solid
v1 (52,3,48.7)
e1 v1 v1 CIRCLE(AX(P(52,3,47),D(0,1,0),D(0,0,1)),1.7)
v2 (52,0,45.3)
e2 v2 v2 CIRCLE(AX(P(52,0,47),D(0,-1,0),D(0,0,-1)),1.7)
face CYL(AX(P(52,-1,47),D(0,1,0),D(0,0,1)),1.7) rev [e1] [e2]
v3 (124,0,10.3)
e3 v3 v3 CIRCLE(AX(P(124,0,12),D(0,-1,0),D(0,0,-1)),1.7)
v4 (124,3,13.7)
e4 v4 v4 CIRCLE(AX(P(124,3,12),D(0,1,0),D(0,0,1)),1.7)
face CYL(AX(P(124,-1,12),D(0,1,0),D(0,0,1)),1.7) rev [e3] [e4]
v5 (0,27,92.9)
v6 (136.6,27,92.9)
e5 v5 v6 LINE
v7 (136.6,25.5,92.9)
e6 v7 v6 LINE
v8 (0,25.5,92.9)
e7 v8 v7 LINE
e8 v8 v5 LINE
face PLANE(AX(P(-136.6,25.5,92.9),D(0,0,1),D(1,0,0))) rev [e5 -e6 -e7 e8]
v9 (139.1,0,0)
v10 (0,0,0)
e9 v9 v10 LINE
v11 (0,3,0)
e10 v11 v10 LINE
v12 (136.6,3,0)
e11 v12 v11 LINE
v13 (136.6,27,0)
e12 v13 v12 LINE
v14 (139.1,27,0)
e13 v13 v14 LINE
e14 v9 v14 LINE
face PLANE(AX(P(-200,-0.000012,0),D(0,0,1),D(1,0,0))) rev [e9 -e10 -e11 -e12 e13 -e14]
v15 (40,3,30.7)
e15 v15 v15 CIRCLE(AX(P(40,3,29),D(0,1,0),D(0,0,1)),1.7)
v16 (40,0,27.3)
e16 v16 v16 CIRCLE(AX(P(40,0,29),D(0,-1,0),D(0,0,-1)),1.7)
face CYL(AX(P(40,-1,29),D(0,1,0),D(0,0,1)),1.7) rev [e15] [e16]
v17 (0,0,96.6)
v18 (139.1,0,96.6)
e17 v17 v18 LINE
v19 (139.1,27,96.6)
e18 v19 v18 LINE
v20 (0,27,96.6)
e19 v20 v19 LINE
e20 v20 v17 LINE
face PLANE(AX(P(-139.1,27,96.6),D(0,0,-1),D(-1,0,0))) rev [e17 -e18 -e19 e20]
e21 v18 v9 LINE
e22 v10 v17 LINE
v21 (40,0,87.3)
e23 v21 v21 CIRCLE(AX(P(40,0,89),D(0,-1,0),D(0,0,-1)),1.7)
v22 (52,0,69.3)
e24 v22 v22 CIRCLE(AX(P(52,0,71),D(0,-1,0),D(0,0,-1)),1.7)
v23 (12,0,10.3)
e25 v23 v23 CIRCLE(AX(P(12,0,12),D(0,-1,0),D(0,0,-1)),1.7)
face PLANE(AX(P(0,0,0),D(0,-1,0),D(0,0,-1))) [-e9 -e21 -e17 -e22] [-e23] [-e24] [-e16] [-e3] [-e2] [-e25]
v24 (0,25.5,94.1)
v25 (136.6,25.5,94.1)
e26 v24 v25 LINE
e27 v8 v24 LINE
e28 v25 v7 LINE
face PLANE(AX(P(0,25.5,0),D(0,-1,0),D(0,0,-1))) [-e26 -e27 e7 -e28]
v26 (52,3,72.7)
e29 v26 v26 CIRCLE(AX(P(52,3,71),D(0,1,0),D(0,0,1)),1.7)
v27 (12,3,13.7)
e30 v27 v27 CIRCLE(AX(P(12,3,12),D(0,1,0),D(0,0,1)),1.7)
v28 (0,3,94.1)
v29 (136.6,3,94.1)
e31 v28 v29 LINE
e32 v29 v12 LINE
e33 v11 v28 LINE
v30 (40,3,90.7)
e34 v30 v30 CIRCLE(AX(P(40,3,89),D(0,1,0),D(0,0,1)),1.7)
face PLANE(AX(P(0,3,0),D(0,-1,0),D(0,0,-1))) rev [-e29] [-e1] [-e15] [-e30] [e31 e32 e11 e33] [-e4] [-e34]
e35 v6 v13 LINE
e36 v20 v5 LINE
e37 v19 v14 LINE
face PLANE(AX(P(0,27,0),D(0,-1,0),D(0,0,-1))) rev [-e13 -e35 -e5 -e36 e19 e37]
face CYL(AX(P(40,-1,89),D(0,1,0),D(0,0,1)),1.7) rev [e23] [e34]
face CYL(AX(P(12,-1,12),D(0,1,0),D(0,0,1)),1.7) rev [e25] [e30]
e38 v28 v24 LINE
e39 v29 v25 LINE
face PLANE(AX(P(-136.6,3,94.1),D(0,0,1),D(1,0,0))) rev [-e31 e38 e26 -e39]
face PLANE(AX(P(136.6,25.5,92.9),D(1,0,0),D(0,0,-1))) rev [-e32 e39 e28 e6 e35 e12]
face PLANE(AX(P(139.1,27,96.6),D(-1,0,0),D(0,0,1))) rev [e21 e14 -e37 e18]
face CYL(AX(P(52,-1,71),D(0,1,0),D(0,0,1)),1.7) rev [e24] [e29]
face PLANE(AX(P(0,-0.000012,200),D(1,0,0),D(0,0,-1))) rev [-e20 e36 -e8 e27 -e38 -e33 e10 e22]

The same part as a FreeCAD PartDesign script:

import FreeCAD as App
import Part
import Sketcher
from FreeCAD import Vector


def add_polygon(sketch, points):
    """Adds a closed chain of lines whose ends are joined by coincident constraints."""
    first, n = sketch.GeometryCount, len(points)
    for a, b in zip(points, points[1:] + points[:1]):
        sketch.addGeometry(Part.LineSegment(App.Vector(*a, 0), App.Vector(*b, 0)), False)
    for i in range(n):
        sketch.addConstraint(Sketcher.Constraint("Coincident", first + i, 2, first + (i + 1) % n, 1))

doc = App.newDocument("Part")
params = doc.addObject("Spreadsheet::Sheet", "Params")
for row, (alias, value) in enumerate([
    ("sketch1_width", "278.2 mm"),
    ("sketch1_height", "193.2 mm"),
    ("pad1_length", "27 mm"),
    ("sketch2_width", "273.2 mm"),
    ("sketch2_height", "185.8 mm"),
    ("pocket1_length", "1.5 mm"),
    ("sketch3_width", "273.2 mm"),
    ("sketch3_height", "188.2 mm"),
    ("pocket2_length", "22.5 mm"),
    ("sketch4_width", "3 mm"),
    ("sketch4_height", "56 mm"),
    ("pocket3_length", "4 mm"),
    ("sketch5_width", "23 mm"),
    ("sketch5_height", "58 mm"),
    ("pocket4_length", "140.1 mm"),
    ("sketch6_diameter", "3.4 mm"),
    ("pocket5_length", "4 mm"),
    ("sketch7_width", "200 mm"),
    ("sketch7_height", "400 mm"),
    ("sketch8_width", "400 mm"),
    ("sketch8_height", "200 mm"),
], start=1):
    params.set(f"A{row}", alias)
    params.set(f"B{row}", "=" + value)
    params.setAlias(f"B{row}", alias)

body = doc.addObject("PartDesign::Body", "Body")

# Sketch on XZ plane
sketch1 = body.newObject("Sketcher::SketchObject", "Sketch")
sketch1.AttachmentSupport = (doc.getObject("XZ_Plane"), [""])
sketch1.MapMode = "FlatFace"
add_polygon(sketch1, [(-139, -97), (-139, 97), (139, 97), (139, -97)])  # lines 0-3
sketch1.addConstraint([
    Sketcher.Constraint("Vertical", 0),
    Sketcher.Constraint("Horizontal", 1),
    Sketcher.Constraint("Vertical", 2),
    Sketcher.Constraint("Horizontal", 3),
    Sketcher.Constraint("Symmetric", 0, 2, 2, 2, -1, 1),
    Sketcher.Constraint("DistanceX", 1, 1, 1, 2, 278.2),
    Sketcher.Constraint("DistanceY", 0, 1, 0, 2, 193.2),
])
sketch1.setExpression("Constraints[9]", "Params.sketch1_width")
sketch1.setExpression("Constraints[10]", "Params.sketch1_height")
pad1 = body.newObject("PartDesign::Pad", "Pad")
pad1.Profile = sketch1
pad1.setExpression("Length", "Params.pad1_length")
pad1.Reversed = True

# Sketch on XZ plane
sketch2 = body.newObject("Sketcher::SketchObject", "Sketch001")
sketch2.AttachmentSupport = (doc.getObject("XZ_Plane"), [""])
sketch2.MapMode = "FlatFace"
sketch2.AttachmentOffset = App.Placement(Vector(0, 0, -27), App.Rotation())
add_polygon(sketch2, [(-137, -93), (-137, 93), (137, 93), (137, -93)])  # lines 0-3
sketch2.addConstraint([
    Sketcher.Constraint("Vertical", 0),
    Sketcher.Constraint("Horizontal", 1),
    Sketcher.Constraint("Vertical", 2),
    Sketcher.Constraint("Horizontal", 3),
    Sketcher.Constraint("Symmetric", 0, 2, 2, 2, -1, 1),
    Sketcher.Constraint("DistanceX", 1, 1, 1, 2, 273.2),
    Sketcher.Constraint("DistanceY", 0, 1, 0, 2, 185.8),
])
sketch2.setExpression("Constraints[9]", "Params.sketch2_width")
sketch2.setExpression("Constraints[10]", "Params.sketch2_height")
pocket1 = body.newObject("PartDesign::Pocket", "Pocket")
pocket1.Profile = sketch2
pocket1.setExpression("Length", "Params.pocket1_length")
pocket1.Reversed = True

# Sketch on XZ plane
sketch3 = body.newObject("Sketcher::SketchObject", "Sketch002")
sketch3.AttachmentSupport = (doc.getObject("XZ_Plane"), [""])
sketch3.MapMode = "FlatFace"
sketch3.AttachmentOffset = App.Placement(Vector(0, 0, -25.5), App.Rotation())
add_polygon(sketch3, [(-137, -94), (-137, 94), (137, 94), (137, -94)])  # lines 0-3
sketch3.addConstraint([
    Sketcher.Constraint("Vertical", 0),
    Sketcher.Constraint("Horizontal", 1),
    Sketcher.Constraint("Vertical", 2),
    Sketcher.Constraint("Horizontal", 3),
    Sketcher.Constraint("Symmetric", 0, 2, 2, 2, -1, 1),
    Sketcher.Constraint("DistanceX", 1, 1, 1, 2, 273.2),
    Sketcher.Constraint("DistanceY", 0, 1, 0, 2, 188.2),
])
sketch3.setExpression("Constraints[9]", "Params.sketch3_width")
sketch3.setExpression("Constraints[10]", "Params.sketch3_height")
pocket2 = body.newObject("PartDesign::Pocket", "Pocket001")
pocket2.Profile = sketch3
pocket2.setExpression("Length", "Params.pocket2_length")
pocket2.Reversed = True

# Sketch on XZ plane
sketch4 = body.newObject("Sketcher::SketchObject", "Sketch003")
sketch4.AttachmentSupport = (doc.getObject("XZ_Plane"), [""])
sketch4.MapMode = "FlatFace"
sketch4.AttachmentOffset = App.Placement(Vector(0, 0, -3), App.Rotation())
add_polygon(sketch4, [(-69, -84), (-69, -28), (-66, -28), (-66, -84)])  # lines 0-3
add_polygon(sketch4, [(-69, 28), (-69, 84), (-66, 84), (-66, 28)])  # lines 4-7
add_polygon(sketch4, [(-77, -84), (-77, -28), (-74, -28), (-74, -84)])  # lines 8-11
add_polygon(sketch4, [(-77, 28), (-77, 84), (-74, 84), (-74, 28)])  # lines 12-15
add_polygon(sketch4, [(-85, -84), (-85, -28), (-82, -28), (-82, -84)])  # lines 16-19
add_polygon(sketch4, [(-85, 28), (-85, 84), (-82, 84), (-82, 28)])  # lines 20-23
add_polygon(sketch4, [(-93, -84), (-93, -28), (-90, -28), (-90, -84)])  # lines 24-27
add_polygon(sketch4, [(-93, 28), (-93, 84), (-90, 84), (-90, 28)])  # lines 28-31
add_polygon(sketch4, [(-101, -84), (-101, -28), (-98, -28), (-98, -84)])  # lines 32-35
add_polygon(sketch4, [(-101, 28), (-101, 84), (-98, 84), (-98, 28)])  # lines 36-39
add_polygon(sketch4, [(-109, -84), (-109, -28), (-106, -28), (-106, -84)])  # lines 40-43
add_polygon(sketch4, [(-109, 28), (-109, 84), (-106, 84), (-106, 28)])  # lines 44-47
add_polygon(sketch4, [(-117, -84), (-117, -28), (-114, -28), (-114, -84)])  # lines 48-51
add_polygon(sketch4, [(-117, 28), (-117, 84), (-114, 84), (-114, 28)])  # lines 52-55
add_polygon(sketch4, [(-125, -84), (-125, -28), (-122, -28), (-122, -84)])  # lines 56-59
add_polygon(sketch4, [(-125, 28), (-125, 84), (-122, 84), (-122, 28)])  # lines 60-63
sketch4.addConstraint([
    Sketcher.Constraint("Vertical", 0),
    Sketcher.Constraint("Horizontal", 1),
    Sketcher.Constraint("Vertical", 2),
    Sketcher.Constraint("Horizontal", 3),
    Sketcher.Constraint("Vertical", 4),
    Sketcher.Constraint("Horizontal", 5),
    Sketcher.Constraint("Vertical", 6),
    Sketcher.Constraint("Horizontal", 7),
    Sketcher.Constraint("Vertical", 8),
    Sketcher.Constraint("Horizontal", 9),
    Sketcher.Constraint("Vertical", 10),
    Sketcher.Constraint("Horizontal", 11),
    Sketcher.Constraint("Vertical", 12),
    Sketcher.Constraint("Horizontal", 13),
    Sketcher.Constraint("Vertical", 14),
    Sketcher.Constraint("Horizontal", 15),
    Sketcher.Constraint("Vertical", 16),
    Sketcher.Constraint("Horizontal", 17),
    Sketcher.Constraint("Vertical", 18),
    Sketcher.Constraint("Horizontal", 19),
    Sketcher.Constraint("Vertical", 20),
    Sketcher.Constraint("Horizontal", 21),
    Sketcher.Constraint("Vertical", 22),
    Sketcher.Constraint("Horizontal", 23),
    Sketcher.Constraint("Vertical", 24),
    Sketcher.Constraint("Horizontal", 25),
    Sketcher.Constraint("Vertical", 26),
    Sketcher.Constraint("Horizontal", 27),
    Sketcher.Constraint("Vertical", 28),
    Sketcher.Constraint("Horizontal", 29),
    Sketcher.Constraint("Vertical", 30),
    Sketcher.Constraint("Horizontal", 31),
    Sketcher.Constraint("Vertical", 32),
    Sketcher.Constraint("Horizontal", 33),
    Sketcher.Constraint("Vertical", 34),
    Sketcher.Constraint("Horizontal", 35),
    Sketcher.Constraint("Vertical", 36),
    Sketcher.Constraint("Horizontal", 37),
    Sketcher.Constraint("Vertical", 38),
    Sketcher.Constraint("Horizontal", 39),
    Sketcher.Constraint("Vertical", 40),
    Sketcher.Constraint("Horizontal", 41),
    Sketcher.Constraint("Vertical", 42),
    Sketcher.Constraint("Horizontal", 43),
    Sketcher.Constraint("Vertical", 44),
    Sketcher.Constraint("Horizontal", 45),
    Sketcher.Constraint("Vertical", 46),
    Sketcher.Constraint("Horizontal", 47),
    Sketcher.Constraint("Vertical", 48),
    Sketcher.Constraint("Horizontal", 49),
    Sketcher.Constraint("Vertical", 50),
    Sketcher.Constraint("Horizontal", 51),
    Sketcher.Constraint("Vertical", 52),
    Sketcher.Constraint("Horizontal", 53),
    Sketcher.Constraint("Vertical", 54),
    Sketcher.Constraint("Horizontal", 55),
    Sketcher.Constraint("Vertical", 56),
    Sketcher.Constraint("Horizontal", 57),
    Sketcher.Constraint("Vertical", 58),
    Sketcher.Constraint("Horizontal", 59),
    Sketcher.Constraint("Vertical", 60),
    Sketcher.Constraint("Horizontal", 61),
    Sketcher.Constraint("Vertical", 62),
    Sketcher.Constraint("Horizontal", 63),
    Sketcher.Constraint("Symmetric", 3, 2, 4, 2, -1),
    Sketcher.Constraint("Symmetric", 1, 2, 6, 2, -1),
    Sketcher.Constraint("Symmetric", 11, 2, 12, 2, -1),
    Sketcher.Constraint("Symmetric", 9, 2, 14, 2, -1),
    Sketcher.Constraint("Symmetric", 19, 2, 20, 2, -1),
    Sketcher.Constraint("Symmetric", 17, 2, 22, 2, -1),
    Sketcher.Constraint("Symmetric", 27, 2, 28, 2, -1),
    Sketcher.Constraint("Symmetric", 25, 2, 30, 2, -1),
    Sketcher.Constraint("Symmetric", 35, 2, 36, 2, -1),
    Sketcher.Constraint("Symmetric", 33, 2, 38, 2, -1),
    Sketcher.Constraint("Symmetric", 43, 2, 44, 2, -1),
    Sketcher.Constraint("Symmetric", 41, 2, 46, 2, -1),
    Sketcher.Constraint("Symmetric", 51, 2, 52, 2, -1),
    Sketcher.Constraint("Symmetric", 49, 2, 54, 2, -1),
    Sketcher.Constraint("Symmetric", 59, 2, 60, 2, -1),
    Sketcher.Constraint("Symmetric", 57, 2, 62, 2, -1),
    Sketcher.Constraint("Horizontal", 1, 2, 8, 2),
    Sketcher.Constraint("Horizontal", 3, 2, 10, 2),
    Sketcher.Constraint("Horizontal", 9, 2, 16, 2),
    Sketcher.Constraint("Horizontal", 11, 2, 18, 2),
    Sketcher.Constraint("Horizontal", 17, 2, 24, 2),
    Sketcher.Constraint("Horizontal", 19, 2, 26, 2),
    Sketcher.Constraint("Horizontal", 25, 2, 32, 2),
    Sketcher.Constraint("Horizontal", 27, 2, 34, 2),
    Sketcher.Constraint("Horizontal", 33, 2, 40, 2),
    Sketcher.Constraint("Horizontal", 35, 2, 42, 2),
    Sketcher.Constraint("Horizontal", 41, 2, 48, 2),
    Sketcher.Constraint("Horizontal", 43, 2, 50, 2),
    Sketcher.Constraint("Horizontal", 49, 2, 56, 2),
    Sketcher.Constraint("Horizontal", 51, 2, 58, 2),
    Sketcher.Constraint("Equal", 7, 9),
    Sketcher.Constraint("Equal", 15, 17),
    Sketcher.Constraint("Equal", 23, 25),
    Sketcher.Constraint("Equal", 31, 33),
    Sketcher.Constraint("Equal", 39, 41),
    Sketcher.Constraint("Equal", 47, 49),
    Sketcher.Constraint("Equal", 55, 57),
    Sketcher.Constraint("DistanceX", 1, 1, 1, 2, 3.0),
    Sketcher.Constraint("DistanceY", 0, 1, 0, 2, 56.0),
    Sketcher.Constraint("DistanceX", 0, 2, -1, 1, 69.0),
    Sketcher.Constraint("DistanceY", 0, 2, -1, 1, 28.0),
    Sketcher.Constraint("DistanceX", 8, 2, -1, 1, 77.0),
    Sketcher.Constraint("DistanceX", 16, 2, -1, 1, 85.0),
    Sketcher.Constraint("DistanceX", 24, 2, -1, 1, 93.0),
    Sketcher.Constraint("DistanceX", 32, 2, -1, 1, 101.0),
    Sketcher.Constraint("DistanceX", 40, 2, -1, 1, 109.0),
    Sketcher.Constraint("DistanceX", 48, 2, -1, 1, 117.0),
    Sketcher.Constraint("DistanceX", 56, 2, -1, 1, 125.0),
])
sketch4.setExpression("Constraints[165]", "Params.sketch4_width")
sketch4.setExpression("Constraints[166]", "Params.sketch4_height")
pocket3 = body.newObject("PartDesign::Pocket", "Pocket002")
pocket3.Profile = sketch4
pocket3.setExpression("Length", "Params.pocket3_length")
pocket3.Reversed = True

# Sketch on YZ plane
sketch5 = body.newObject("Sketcher::SketchObject", "Sketch004")
sketch5.AttachmentSupport = (doc.getObject("YZ_Plane"), [""])
sketch5.MapMode = "FlatFace"
add_polygon(sketch5, [(28, 29), (5, 29), (5, -29), (28, -29)])  # lines 0-3
sketch5.addConstraint([
    Sketcher.Constraint("Horizontal", 0),
    Sketcher.Constraint("Vertical", 1),
    Sketcher.Constraint("Horizontal", 2),
    Sketcher.Constraint("Vertical", 3),
    Sketcher.Constraint("DistanceX", 0, 2, 0, 1, 23.0),
    Sketcher.Constraint("DistanceY", 1, 2, 1, 1, 58.0),
    Sketcher.Constraint("DistanceX", -1, 1, 0, 2, 5.0),
    Sketcher.Constraint("DistanceY", -1, 1, 0, 2, 29.0),
])
sketch5.setExpression("Constraints[8]", "Params.sketch5_width")
sketch5.setExpression("Constraints[9]", "Params.sketch5_height")
pocket4 = body.newObject("PartDesign::Pocket", "Pocket003")
pocket4.Profile = sketch5
pocket4.setExpression("Length", "Params.pocket4_length")

# Sketch on XZ plane
sketch6 = body.newObject("Sketcher::SketchObject", "Sketch005")
sketch6.AttachmentSupport = (doc.getObject("XZ_Plane"), [""])
sketch6.MapMode = "FlatFace"
sketch6.AttachmentOffset = App.Placement(Vector(0, 0, -3), App.Rotation())
sketch6.addGeometry([
    Part.Circle(Vector(-40, 29, 0), Vector(0, 0, 1), 1.7),  # 0
    Part.Circle(Vector(-40, 89, 0), Vector(0, 0, 1), 1.7),  # 1
    Part.Circle(Vector(40, 29, 0), Vector(0, 0, 1), 1.7),  # 2
    Part.Circle(Vector(40, 89, 0), Vector(0, 0, 1), 1.7),  # 3
    Part.Circle(Vector(-52, 47, 0), Vector(0, 0, 1), 1.7),  # 4
    Part.Circle(Vector(-52, 71, 0), Vector(0, 0, 1), 1.7),  # 5
    Part.Circle(Vector(52, 47, 0), Vector(0, 0, 1), 1.7),  # 6
    Part.Circle(Vector(52, 71, 0), Vector(0, 0, 1), 1.7),  # 7
    Part.Circle(Vector(-12, -82, 0), Vector(0, 0, 1), 1.7),  # 8
    Part.Circle(Vector(12, -82, 0), Vector(0, 0, 1), 1.7),  # 9
    Part.Circle(Vector(124, -12, 0), Vector(0, 0, 1), 1.7),  # 10
    Part.Circle(Vector(124, 12, 0), Vector(0, 0, 1), 1.7),  # 11
    Part.Circle(Vector(-12, -12, 0), Vector(0, 0, 1), 1.7),  # 12
    Part.Circle(Vector(-12, 12, 0), Vector(0, 0, 1), 1.7),  # 13
    Part.Circle(Vector(12, -12, 0), Vector(0, 0, 1), 1.7),  # 14
    Part.Circle(Vector(12, 12, 0), Vector(0, 0, 1), 1.7),  # 15
    Part.Circle(Vector(-110, 12, 0), Vector(0, 0, 1), 1.7),  # 16
    Part.Circle(Vector(-110, -12, 0), Vector(0, 0, 1), 1.7),  # 17
    Part.Circle(Vector(-86, 12, 0), Vector(0, 0, 1), 1.7),  # 18
    Part.Circle(Vector(-86, -12, 0), Vector(0, 0, 1), 1.7),  # 19
], False)
sketch6.addConstraint([
    Sketcher.Constraint("Equal", 0, 1),
    Sketcher.Constraint("Equal", 1, 2),
    Sketcher.Constraint("Equal", 2, 3),
    Sketcher.Constraint("Equal", 3, 4),
    Sketcher.Constraint("Equal", 4, 5),
    Sketcher.Constraint("Equal", 5, 6),
    Sketcher.Constraint("Equal", 6, 7),
    Sketcher.Constraint("Equal", 7, 8),
    Sketcher.Constraint("Equal", 8, 9),
    Sketcher.Constraint("Equal", 9, 10),
    Sketcher.Constraint("Equal", 10, 11),
    Sketcher.Constraint("Equal", 11, 12),
    Sketcher.Constraint("Equal", 12, 13),
    Sketcher.Constraint("Equal", 13, 14),
    Sketcher.Constraint("Equal", 14, 15),
    Sketcher.Constraint("Equal", 15, 16),
    Sketcher.Constraint("Equal", 16, 17),
    Sketcher.Constraint("Equal", 17, 18),
    Sketcher.Constraint("Equal", 18, 19),
    Sketcher.Constraint("Symmetric", 13, 3, 14, 3, -1, 1),
    Sketcher.Constraint("Symmetric", 12, 3, 15, 3, -1, 1),
    Sketcher.Constraint("Symmetric", 0, 3, 2, 3, -2),
    Sketcher.Constraint("Symmetric", 1, 3, 3, 3, -2),
    Sketcher.Constraint("Symmetric", 4, 3, 6, 3, -2),
    Sketcher.Constraint("Symmetric", 5, 3, 7, 3, -2),
    Sketcher.Constraint("Symmetric", 8, 3, 9, 3, -2),
    Sketcher.Constraint("Symmetric", 12, 3, 14, 3, -2),
    Sketcher.Constraint("Symmetric", 10, 3, 11, 3, -1),
    Sketcher.Constraint("Symmetric", 16, 3, 17, 3, -1),
    Sketcher.Constraint("Symmetric", 18, 3, 19, 3, -1),
    Sketcher.Constraint("Horizontal", 10, 3, 12, 3),
    Sketcher.Constraint("Horizontal", 15, 3, 16, 3),
    Sketcher.Constraint("Horizontal", 16, 3, 18, 3),
    Sketcher.Constraint("Vertical", 0, 3, 1, 3),
    Sketcher.Constraint("Vertical", 4, 3, 5, 3),
    Sketcher.Constraint("Vertical", 8, 3, 12, 3),
    Sketcher.Constraint("Diameter", 0, 3.4),
    Sketcher.Constraint("DistanceX", 0, 3, -1, 1, 40.0),
    Sketcher.Constraint("DistanceY", -1, 1, 0, 3, 29.0),
    Sketcher.Constraint("DistanceY", -1, 1, 1, 3, 89.0),
    Sketcher.Constraint("DistanceX", 4, 3, -1, 1, 52.0),
    Sketcher.Constraint("DistanceY", -1, 1, 4, 3, 47.0),
    Sketcher.Constraint("DistanceY", -1, 1, 5, 3, 71.0),
    Sketcher.Constraint("DistanceX", 8, 3, -1, 1, 12.0),
    Sketcher.Constraint("DistanceY", 8, 3, -1, 1, 82.0),
    Sketcher.Constraint("DistanceX", -1, 1, 10, 3, 124.0),
    Sketcher.Constraint("DistanceY", 10, 3, -1, 1, 12.0),
    Sketcher.Constraint("DistanceX", 16, 3, -1, 1, 110.0),
    Sketcher.Constraint("DistanceX", 18, 3, -1, 1, 86.0),
])
sketch6.setExpression("Constraints[36]", "Params.sketch6_diameter")
pocket5 = body.newObject("PartDesign::Pocket", "Pocket004")
pocket5.Profile = sketch6
pocket5.setExpression("Length", "Params.pocket5_length")
pocket5.Reversed = True

# Sketch on XZ plane
sketch7 = body.newObject("Sketcher::SketchObject", "Sketch006")
sketch7.AttachmentSupport = (doc.getObject("XZ_Plane"), [""])
sketch7.MapMode = "FlatFace"
add_polygon(sketch7, [(-200, -200), (-200, 200), (0, 200), (0, -200)])  # lines 0-3
sketch7.addConstraint([
    Sketcher.Constraint("Vertical", 0),
    Sketcher.Constraint("Horizontal", 1),
    Sketcher.Constraint("Vertical", 2),
    Sketcher.Constraint("Horizontal", 3),
    Sketcher.Constraint("Symmetric", 1, 2, 2, 2, -1, 1),
    Sketcher.Constraint("DistanceX", 1, 1, 1, 2, 200.0),
    Sketcher.Constraint("DistanceY", 0, 1, 0, 2, 400.0),
])
sketch7.setExpression("Constraints[9]", "Params.sketch7_width")
sketch7.setExpression("Constraints[10]", "Params.sketch7_height")
pocket6 = body.newObject("PartDesign::Pocket", "Pocket005")
pocket6.Profile = sketch7
pocket6.Type = "ThroughAll"
pocket6.Midplane = True

# Sketch on XZ plane
sketch8 = body.newObject("Sketcher::SketchObject", "Sketch007")
sketch8.AttachmentSupport = (doc.getObject("XZ_Plane"), [""])
sketch8.MapMode = "FlatFace"
add_polygon(sketch8, [(-200, -200), (-200, 0), (200, 0), (200, -200)])  # lines 0-3
sketch8.addConstraint([
    Sketcher.Constraint("Vertical", 0),
    Sketcher.Constraint("Horizontal", 1),
    Sketcher.Constraint("Vertical", 2),
    Sketcher.Constraint("Horizontal", 3),
    Sketcher.Constraint("Symmetric", 0, 2, 1, 2, -1, 1),
    Sketcher.Constraint("DistanceX", 1, 1, 1, 2, 400.0),
    Sketcher.Constraint("DistanceY", 0, 1, 0, 2, 200.0),
])
sketch8.setExpression("Constraints[9]", "Params.sketch8_width")
sketch8.setExpression("Constraints[10]", "Params.sketch8_height")
pocket7 = body.newObject("PartDesign::Pocket", "Pocket006")
pocket7.Profile = sketch8
pocket7.Type = "ThroughAll"
pocket7.Midplane = True

doc.recompute()
